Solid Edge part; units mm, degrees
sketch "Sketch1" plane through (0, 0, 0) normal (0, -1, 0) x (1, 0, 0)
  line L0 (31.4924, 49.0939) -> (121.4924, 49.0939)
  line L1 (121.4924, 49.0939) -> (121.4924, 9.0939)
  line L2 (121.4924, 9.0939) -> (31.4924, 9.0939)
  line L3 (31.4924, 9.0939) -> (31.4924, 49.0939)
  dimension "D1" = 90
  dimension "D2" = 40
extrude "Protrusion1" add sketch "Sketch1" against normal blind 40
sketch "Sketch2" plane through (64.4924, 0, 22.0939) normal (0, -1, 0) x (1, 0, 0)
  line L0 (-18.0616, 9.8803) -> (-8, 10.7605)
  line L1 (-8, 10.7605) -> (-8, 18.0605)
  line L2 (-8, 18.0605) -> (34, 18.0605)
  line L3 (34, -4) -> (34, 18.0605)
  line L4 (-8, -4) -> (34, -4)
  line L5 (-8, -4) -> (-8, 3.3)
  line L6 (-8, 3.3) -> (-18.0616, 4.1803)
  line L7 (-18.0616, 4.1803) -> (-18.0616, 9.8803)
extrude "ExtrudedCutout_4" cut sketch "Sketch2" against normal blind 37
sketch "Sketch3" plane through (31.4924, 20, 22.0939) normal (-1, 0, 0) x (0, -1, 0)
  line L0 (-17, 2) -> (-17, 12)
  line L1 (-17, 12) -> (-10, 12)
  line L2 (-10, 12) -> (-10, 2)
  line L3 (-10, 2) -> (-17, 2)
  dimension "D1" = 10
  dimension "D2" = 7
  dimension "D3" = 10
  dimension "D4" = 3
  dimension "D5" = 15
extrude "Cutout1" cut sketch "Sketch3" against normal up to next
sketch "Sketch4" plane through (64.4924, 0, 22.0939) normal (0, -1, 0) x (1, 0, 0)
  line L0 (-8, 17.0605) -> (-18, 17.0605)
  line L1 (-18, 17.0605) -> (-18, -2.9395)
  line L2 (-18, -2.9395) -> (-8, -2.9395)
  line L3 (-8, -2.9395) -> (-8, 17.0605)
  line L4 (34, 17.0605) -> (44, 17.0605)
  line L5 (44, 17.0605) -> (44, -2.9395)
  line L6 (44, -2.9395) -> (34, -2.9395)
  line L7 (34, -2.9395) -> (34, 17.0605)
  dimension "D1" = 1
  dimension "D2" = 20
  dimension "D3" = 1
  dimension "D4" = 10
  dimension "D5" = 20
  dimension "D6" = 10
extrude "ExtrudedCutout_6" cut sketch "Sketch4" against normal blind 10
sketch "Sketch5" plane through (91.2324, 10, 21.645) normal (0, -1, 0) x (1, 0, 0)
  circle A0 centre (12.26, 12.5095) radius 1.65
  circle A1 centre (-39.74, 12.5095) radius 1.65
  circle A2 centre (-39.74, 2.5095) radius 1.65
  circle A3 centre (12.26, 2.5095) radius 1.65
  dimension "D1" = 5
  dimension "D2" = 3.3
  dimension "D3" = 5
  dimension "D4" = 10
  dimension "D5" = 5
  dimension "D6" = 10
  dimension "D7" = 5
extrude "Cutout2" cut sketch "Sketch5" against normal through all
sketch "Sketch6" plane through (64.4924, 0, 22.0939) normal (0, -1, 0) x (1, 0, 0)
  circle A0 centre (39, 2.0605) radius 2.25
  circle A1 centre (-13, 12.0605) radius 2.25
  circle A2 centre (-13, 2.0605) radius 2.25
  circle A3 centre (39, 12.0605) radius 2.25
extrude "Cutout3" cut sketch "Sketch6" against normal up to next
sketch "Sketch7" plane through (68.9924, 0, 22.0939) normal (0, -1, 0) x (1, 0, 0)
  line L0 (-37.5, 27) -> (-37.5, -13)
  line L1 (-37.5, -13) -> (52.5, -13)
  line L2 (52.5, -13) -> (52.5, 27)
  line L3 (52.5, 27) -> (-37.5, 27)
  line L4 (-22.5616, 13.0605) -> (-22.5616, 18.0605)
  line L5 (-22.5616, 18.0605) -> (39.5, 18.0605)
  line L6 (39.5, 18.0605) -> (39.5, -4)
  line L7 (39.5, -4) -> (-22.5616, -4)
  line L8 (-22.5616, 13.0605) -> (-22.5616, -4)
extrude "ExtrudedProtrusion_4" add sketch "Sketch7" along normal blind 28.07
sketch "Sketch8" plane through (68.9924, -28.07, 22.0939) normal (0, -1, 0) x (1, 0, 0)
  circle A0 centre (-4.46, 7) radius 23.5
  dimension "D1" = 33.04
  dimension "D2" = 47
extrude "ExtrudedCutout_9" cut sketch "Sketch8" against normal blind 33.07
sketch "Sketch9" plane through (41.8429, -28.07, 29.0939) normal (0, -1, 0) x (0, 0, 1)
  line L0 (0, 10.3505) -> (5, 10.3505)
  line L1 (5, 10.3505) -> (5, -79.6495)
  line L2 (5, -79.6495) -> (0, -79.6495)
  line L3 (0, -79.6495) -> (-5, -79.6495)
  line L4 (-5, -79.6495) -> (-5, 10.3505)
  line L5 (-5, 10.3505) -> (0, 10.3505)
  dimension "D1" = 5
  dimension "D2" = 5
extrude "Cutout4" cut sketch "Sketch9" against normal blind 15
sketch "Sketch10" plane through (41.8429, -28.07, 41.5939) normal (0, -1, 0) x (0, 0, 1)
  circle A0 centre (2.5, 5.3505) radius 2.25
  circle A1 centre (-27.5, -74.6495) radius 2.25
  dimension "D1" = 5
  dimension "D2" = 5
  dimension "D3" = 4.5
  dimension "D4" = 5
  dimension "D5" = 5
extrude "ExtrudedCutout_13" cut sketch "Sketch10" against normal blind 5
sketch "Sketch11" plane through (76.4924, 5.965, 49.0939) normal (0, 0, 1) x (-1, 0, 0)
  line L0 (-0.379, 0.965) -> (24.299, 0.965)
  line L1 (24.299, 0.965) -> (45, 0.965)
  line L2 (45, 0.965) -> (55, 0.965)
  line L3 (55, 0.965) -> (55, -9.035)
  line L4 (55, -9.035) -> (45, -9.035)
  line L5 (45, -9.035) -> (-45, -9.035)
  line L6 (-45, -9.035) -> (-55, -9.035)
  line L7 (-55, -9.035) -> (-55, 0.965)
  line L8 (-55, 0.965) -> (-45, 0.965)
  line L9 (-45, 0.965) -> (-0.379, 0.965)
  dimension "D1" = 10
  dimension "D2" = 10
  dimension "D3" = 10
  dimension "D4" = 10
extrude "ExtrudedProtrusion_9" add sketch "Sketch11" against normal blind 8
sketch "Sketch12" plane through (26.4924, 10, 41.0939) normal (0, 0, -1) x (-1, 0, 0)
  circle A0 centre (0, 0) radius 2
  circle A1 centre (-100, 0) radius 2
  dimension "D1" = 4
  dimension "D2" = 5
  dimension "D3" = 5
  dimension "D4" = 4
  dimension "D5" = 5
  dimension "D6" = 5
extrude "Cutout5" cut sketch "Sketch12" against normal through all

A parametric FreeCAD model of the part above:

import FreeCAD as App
import Part
import Sketcher
Q = App.Units.Quantity


def add_polygon(sketch, points):
    """Adds a closed chain of lines whose ends are joined by coincident constraints."""
    first, n = sketch.GeometryCount, len(points)
    for a, b in zip(points, points[1:] + points[:1]):
        sketch.addGeometry(Part.LineSegment(App.Vector(*a, 0), App.Vector(*b, 0)), False)
    for i in range(n):
        sketch.addConstraint(Sketcher.Constraint("Coincident", first + i, 2, first + (i + 1) % n, 1))

doc = App.newDocument("Part")
params = doc.addObject("Spreadsheet::Sheet", "Params")
for row, (alias, value) in enumerate([
    ("sketch1_width", "90 mm"),
    ("sketch1_height", "40 mm"),
    ("pad1_length", "40 mm"),
    ("sketch2_width", "42 mm"),
    ("sketch2_height", "5.7 mm"),
    ("sketch2_height2", "7.3 mm"),
    ("sketch2_length", "10.1 mm"),
    ("pocket1_length", "37 mm"),
    ("sketch3_height", "10 mm"),
    ("sketch3_width", "7 mm"),
    ("pocket2_length", "25 mm"),
    ("sketch4_width", "10 mm"),
    ("sketch4_height", "20 mm"),
    ("pocket3_length", "10 mm"),
    ("sketch5_diameter", "3.3 mm"),
    ("sketch6_diameter", "4.5 mm"),
    ("pocket5_length", "40 mm"),
    ("sketch7_width", "90 mm"),
    ("sketch7_height", "40 mm"),
    ("pad2_length", "28.07 mm"),
    ("sketch8_diameter", "47 mm"),
    ("pocket6_length", "33.07 mm"),
    ("sketch9_width", "90 mm"),
    ("sketch9_height", "10 mm"),
    ("pocket7_length", "15 mm"),
    ("sketch10_diameter", "4.5 mm"),
    ("pocket8_length", "5 mm"),
    ("sketch11_width", "110 mm"),
    ("sketch11_height", "10 mm"),
    ("pad3_length", "8 mm"),
    ("sketch12_diameter", "4 mm"),
], start=1):
    params.set(f"A{row}", alias)
    params.set(f"B{row}", "=" + value)
    params.setAlias(f"B{row}", alias)

body = doc.addObject("PartDesign::Body", "Body")

# Sketch on XZ plane
sketch1 = body.newObject("Sketcher::SketchObject", "Sketch")
sketch1.AttachmentSupport = (doc.getObject("XZ_Plane"), [""])
sketch1.MapMode = "FlatFace"
add_polygon(sketch1, [(121, 49), (31, 49), (31, 9), (121, 9)])  # lines 0-3
sketch1.addConstraint([
    Sketcher.Constraint("Horizontal", 0),
    Sketcher.Constraint("Vertical", 1),
    Sketcher.Constraint("Horizontal", 2),
    Sketcher.Constraint("Vertical", 3),
    Sketcher.Constraint("DistanceX", 0, 2, 0, 1, 90.0),
    Sketcher.Constraint("DistanceY", 1, 2, 1, 1, 40.0),
    Sketcher.Constraint("DistanceX", -1, 1, 0, 2, 31.4924),
    Sketcher.Constraint("DistanceY", -1, 1, 0, 2, 49.094),
])
sketch1.setExpression("Constraints[8]", "Params.sketch1_width")
sketch1.setExpression("Constraints[9]", "Params.sketch1_height")
pad1 = body.newObject("PartDesign::Pad", "Pad")
pad1.Profile = sketch1
pad1.setExpression("Length", "Params.pad1_length")
pad1.Reversed = True

# Sketch on XZ plane
sketch2 = body.newObject("Sketcher::SketchObject", "Sketch001")
sketch2.AttachmentSupport = (doc.getObject("XZ_Plane"), [""])
sketch2.MapMode = "FlatFace"
add_polygon(sketch2, [(56, 33), (46, 32), (46, 26), (56, 25), (56, 18), (98, 18), (98, 40), (56, 40)])  # lines 0-7
sketch2.addConstraint([
    Sketcher.Constraint("Vertical", 1),
    Sketcher.Constraint("Vertical", 3),
    Sketcher.Constraint("Horizontal", 4),
    Sketcher.Constraint("Vertical", 5),
    Sketcher.Constraint("Horizontal", 6),
    Sketcher.Constraint("Vertical", 7),
    Sketcher.Constraint("Vertical", 3, 2, 6, 2),
    Sketcher.Constraint("Equal", 3, 7),
    Sketcher.Constraint("Equal", 0, 2),
    Sketcher.Constraint("DistanceX", 4, 1, 4, 2, 42.0),
    Sketcher.Constraint("Angle", 0, Q("-175.0004 deg")),
    Sketcher.Constraint("DistanceY", 1, 2, 1, 1, 5.7),
    Sketcher.Constraint("DistanceY", 3, 2, 3, 1, 7.3),
    Sketcher.Constraint("Distance", 0, 10.1),
    Sketcher.Constraint("DistanceY", -1, 1, 2, 2, 25.394),
    Sketcher.Constraint("DistanceX", -1, 1, 0, 2, 46.4308),
])
sketch2.setExpression("Constraints[17]", "Params.sketch2_width")
sketch2.setExpression("Constraints[19]", "Params.sketch2_height")
sketch2.setExpression("Constraints[20]", "Params.sketch2_height2")
sketch2.setExpression("Constraints[21]", "Params.sketch2_length")
pocket1 = body.newObject("PartDesign::Pocket", "Pocket")
pocket1.Profile = sketch2
pocket1.setExpression("Length", "Params.pocket1_length")

# Sketch on YZ plane
sketch3 = body.newObject("Sketcher::SketchObject", "Sketch002")
sketch3.AttachmentSupport = (doc.getObject("YZ_Plane"), [""])
sketch3.MapMode = "FlatFace"
sketch3.AttachmentOffset = App.Placement(App.Vector(0, 0, 31.4924), App.Rotation())
add_polygon(sketch3, [(37, 34), (37, 24), (30, 24), (30, 34)])  # lines 0-3
sketch3.addConstraint([
    Sketcher.Constraint("Vertical", 0),
    Sketcher.Constraint("Horizontal", 1),
    Sketcher.Constraint("Vertical", 2),
    Sketcher.Constraint("Horizontal", 3),
    Sketcher.Constraint("DistanceY", 0, 2, 0, 1, 10.0),
    Sketcher.Constraint("DistanceX", 1, 2, 1, 1, 7.0),
    Sketcher.Constraint("DistanceX", -1, 1, 0, 2, 37.0),
    Sketcher.Constraint("DistanceY", -1, 1, 0, 2, 24.094),
])
sketch3.setExpression("Constraints[8]", "Params.sketch3_height")
sketch3.setExpression("Constraints[9]", "Params.sketch3_width")
pocket2 = body.newObject("PartDesign::Pocket", "Pocket001")
pocket2.Profile = sketch3
pocket2.setExpression("Length", "Params.pocket2_length")
pocket2.Reversed = True

# Sketch on XZ plane
sketch4 = body.newObject("Sketcher::SketchObject", "Sketch003")
sketch4.AttachmentSupport = (doc.getObject("XZ_Plane"), [""])
sketch4.MapMode = "FlatFace"
add_polygon(sketch4, [(56, 19), (56, 39), (46, 39), (46, 19)])  # lines 0-3
add_polygon(sketch4, [(108, 39), (98, 39), (98, 19), (108, 19)])  # lines 4-7
sketch4.addConstraint([
    Sketcher.Constraint("Vertical", 0),
    Sketcher.Constraint("Horizontal", 1),
    Sketcher.Constraint("Vertical", 2),
    Sketcher.Constraint("Horizontal", 3),
    Sketcher.Constraint("Horizontal", 4),
    Sketcher.Constraint("Vertical", 5),
    Sketcher.Constraint("Horizontal", 6),
    Sketcher.Constraint("Vertical", 7),
    Sketcher.Constraint("Horizontal", 1, 2, 4, 2),
    Sketcher.Constraint("Horizontal", 3, 2, 5, 2),
    Sketcher.Constraint("Equal", 3, 4),
    Sketcher.Constraint("DistanceX", 1, 2, 1, 1, 10.0),
    Sketcher.Constraint("DistanceY", 0, 1, 0, 2, 20.0),
    Sketcher.Constraint("DistanceX", 0, 2, 4, 2, 42.0),
    Sketcher.Constraint("DistanceX", -1, 1, 0, 2, 56.4924),
    Sketcher.Constraint("DistanceY", -1, 1, 0, 2, 39.1544),
])
sketch4.setExpression("Constraints[19]", "Params.sketch4_width")
sketch4.setExpression("Constraints[20]", "Params.sketch4_height")
pocket3 = body.newObject("PartDesign::Pocket", "Pocket002")
pocket3.Profile = sketch4
pocket3.setExpression("Length", "Params.pocket3_length")

# Sketch on XZ plane
sketch5 = body.newObject("Sketcher::SketchObject", "Sketch004")
sketch5.AttachmentSupport = (doc.getObject("XZ_Plane"), [""])
sketch5.MapMode = "FlatFace"
sketch5.AttachmentOffset = App.Placement(App.Vector(0, 0, -10), App.Rotation())
sketch5.addGeometry([
    Part.Circle(App.Vector(103.5, 34.2, 0), App.Vector(0, 0, 1), 1.6),
    Part.Circle(App.Vector(51.5, 34.2, 0), App.Vector(0, 0, 1), 1.6),
    Part.Circle(App.Vector(51.5, 24.2, 0), App.Vector(0, 0, 1), 1.6),
    Part.Circle(App.Vector(103.5, 24.2, 0), App.Vector(0, 0, 1), 1.6),
], False)
sketch5.addConstraint([
    Sketcher.Constraint("Equal", 0, 1),
    Sketcher.Constraint("Equal", 1, 2),
    Sketcher.Constraint("Equal", 2, 3),
    Sketcher.Constraint("Horizontal", 0, 3, 1, 3),
    Sketcher.Constraint("Horizontal", 2, 3, 3, 3),
    Sketcher.Constraint("Vertical", 1, 3, 2, 3),
    Sketcher.Constraint("Vertical", 0, 3, 3, 3),
    Sketcher.Constraint("Diameter", 0, 3.3),
    Sketcher.Constraint("DistanceX", 1, 3, 0, 3, 52.0),
    Sketcher.Constraint("DistanceY", 2, 3, 1, 3, 10.0),
    Sketcher.Constraint("DistanceX", -1, 1, 0, 3, 103.4924),
    Sketcher.Constraint("DistanceY", -1, 1, 0, 3, 34.1545),
])
sketch5.setExpression("Constraints[7]", "Params.sketch5_diameter")
pocket4 = body.newObject("PartDesign::Pocket", "Pocket003")
pocket4.Profile = sketch5
pocket4.Type = "ThroughAll"

# Sketch on XZ plane
sketch6 = body.newObject("Sketcher::SketchObject", "Sketch005")
sketch6.AttachmentSupport = (doc.getObject("XZ_Plane"), [""])
sketch6.MapMode = "FlatFace"
sketch6.addGeometry([
    Part.Circle(App.Vector(103.5, 24.2, 0), App.Vector(0, 0, 1), 2.2),
    Part.Circle(App.Vector(51.5, 34.2, 0), App.Vector(0, 0, 1), 2.2),
    Part.Circle(App.Vector(51.5, 24.2, 0), App.Vector(0, 0, 1), 2.2),
    Part.Circle(App.Vector(103.5, 34.2, 0), App.Vector(0, 0, 1), 2.2),
], False)
sketch6.addConstraint([
    Sketcher.Constraint("Equal", 0, 1),
    Sketcher.Constraint("Equal", 1, 2),
    Sketcher.Constraint("Equal", 2, 3),
    Sketcher.Constraint("Horizontal", 0, 3, 2, 3),
    Sketcher.Constraint("Horizontal", 1, 3, 3, 3),
    Sketcher.Constraint("Vertical", 1, 3, 2, 3),
    Sketcher.Constraint("Vertical", 0, 3, 3, 3),
    Sketcher.Constraint("Diameter", 0, 4.5),
    Sketcher.Constraint("DistanceX", 1, 3, 0, 3, 52.0),
    Sketcher.Constraint("DistanceY", 0, 3, 1, 3, 10.0),
    Sketcher.Constraint("DistanceX", -1, 1, 0, 3, 103.4924),
    Sketcher.Constraint("DistanceY", -1, 1, 0, 3, 24.1544),
])
sketch6.setExpression("Constraints[7]", "Params.sketch6_diameter")
pocket5 = body.newObject("PartDesign::Pocket", "Pocket004")
pocket5.Profile = sketch6
pocket5.setExpression("Length", "Params.pocket5_length")

# Sketch on XZ plane
sketch7 = body.newObject("Sketcher::SketchObject", "Sketch006")
sketch7.AttachmentSupport = (doc.getObject("XZ_Plane"), [""])
sketch7.MapMode = "FlatFace"
add_polygon(sketch7, [(121, 49), (31, 49), (31, 9), (121, 9)])  # lines 0-3
add_polygon(sketch7, [(46, 18), (46, 40), (108, 40), (108, 18)])  # lines 4-7
sketch7.addConstraint([
    Sketcher.Constraint("Horizontal", 0),
    Sketcher.Constraint("Vertical", 1),
    Sketcher.Constraint("Horizontal", 2),
    Sketcher.Constraint("Vertical", 3),
    Sketcher.Constraint("Vertical", 4),
    Sketcher.Constraint("Horizontal", 5),
    Sketcher.Constraint("Vertical", 6),
    Sketcher.Constraint("Horizontal", 7),
    Sketcher.Constraint("DistanceX", 0, 2, 0, 1, 90.0),
    Sketcher.Constraint("DistanceY", 1, 2, 1, 1, 40.0),
    Sketcher.Constraint("DistanceX", 5, 2, 3, 2, 13.0),
    Sketcher.Constraint("DistanceY", 2, 2, 6, 2, 9.0),
    Sketcher.Constraint("DistanceX", 5, 1, 5, 2, 62.0616),
    Sketcher.Constraint("DistanceY", 4, 1, 4, 2, 22.0605),
    Sketcher.Constraint("DistanceY", -1, 1, 0, 2, 49.094),
    Sketcher.Constraint("DistanceX", -1, 1, 0, 2, 31.4924),
])
sketch7.setExpression("Constraints[16]", "Params.sketch7_width")
sketch7.setExpression("Constraints[17]", "Params.sketch7_height")
pad2 = body.newObject("PartDesign::Pad", "Pad001")
pad2.Profile = sketch7
pad2.setExpression("Length", "Params.pad2_length")

# Sketch on XZ plane
sketch8 = body.newObject("Sketcher::SketchObject", "Sketch007")
sketch8.AttachmentSupport = (doc.getObject("XZ_Plane"), [""])
sketch8.MapMode = "FlatFace"
sketch8.AttachmentOffset = App.Placement(App.Vector(0, 0, 28.07), App.Rotation())
sketch8.addGeometry(Part.Circle(App.Vector(65, 29, 0), App.Vector(0, 0, 1), 24), False)
sketch8.addConstraint([
    Sketcher.Constraint("Diameter", 0, 47.0),
    Sketcher.Constraint("DistanceY", -1, 1, 0, 3, 29.094),
    Sketcher.Constraint("DistanceX", -1, 1, 0, 3, 64.5324),
])
sketch8.setExpression("Constraints[0]", "Params.sketch8_diameter")
pocket6 = body.newObject("PartDesign::Pocket", "Pocket005")
pocket6.Profile = sketch8
pocket6.setExpression("Length", "Params.pocket6_length")

# Sketch on XZ plane
sketch9 = body.newObject("Sketcher::SketchObject", "Sketch008")
sketch9.AttachmentSupport = (doc.getObject("XZ_Plane"), [""])
sketch9.MapMode = "FlatFace"
sketch9.AttachmentOffset = App.Placement(App.Vector(0, 0, 28.07), App.Rotation())
add_polygon(sketch9, [(31, 34), (31, 24), (121, 24), (121, 34)])  # lines 0-3
sketch9.addConstraint([
    Sketcher.Constraint("Vertical", 0),
    Sketcher.Constraint("Horizontal", 1),
    Sketcher.Constraint("Vertical", 2),
    Sketcher.Constraint("Horizontal", 3),
    Sketcher.Constraint("DistanceX", 1, 1, 1, 2, 90.0),
    Sketcher.Constraint("DistanceY", 0, 2, 0, 1, 10.0),
    Sketcher.Constraint("DistanceY", -1, 1, 0, 2, 24.094),
    Sketcher.Constraint("DistanceX", -1, 1, 0, 2, 31.4924),
])
sketch9.setExpression("Constraints[8]", "Params.sketch9_width")
sketch9.setExpression("Constraints[9]", "Params.sketch9_height")
pocket7 = body.newObject("PartDesign::Pocket", "Pocket006")
pocket7.Profile = sketch9
pocket7.setExpression("Length", "Params.pocket7_length")

# Sketch on XZ plane
sketch10 = body.newObject("Sketcher::SketchObject", "Sketch009")
sketch10.AttachmentSupport = (doc.getObject("XZ_Plane"), [""])
sketch10.MapMode = "FlatFace"
sketch10.AttachmentOffset = App.Placement(App.Vector(0, 0, 28.07), App.Rotation())
sketch10.addGeometry([
    Part.Circle(App.Vector(36.5, 44.1, 0), App.Vector(0, 0, 1), 2.2),
    Part.Circle(App.Vector(116.5, 14.1, 0), App.Vector(0, 0, 1), 2.2),
], False)
sketch10.addConstraint([
    Sketcher.Constraint("Equal", 0, 1),
    Sketcher.Constraint("Diameter", 0, 4.5),
    Sketcher.Constraint("DistanceX", 0, 3, 1, 3, 80.0),
    Sketcher.Constraint("DistanceY", 1, 3, 0, 3, 30.0),
    Sketcher.Constraint("DistanceY", -1, 1, 0, 3, 44.094),
    Sketcher.Constraint("DistanceX", -1, 1, 0, 3, 36.4924),
])
sketch10.setExpression("Constraints[1]", "Params.sketch10_diameter")
pocket8 = body.newObject("PartDesign::Pocket", "Pocket007")
pocket8.Profile = sketch10
pocket8.setExpression("Length", "Params.pocket8_length")

# Sketch on XY plane
sketch11 = body.newObject("Sketcher::SketchObject", "Sketch010")
sketch11.AttachmentSupport = (doc.getObject("XY_Plane"), [""])
sketch11.MapMode = "FlatFace"
sketch11.AttachmentOffset = App.Placement(App.Vector(0, 0, 49.0939), App.Rotation())
add_polygon(sketch11, [(21, 5), (131, 5), (131, 15), (21, 15)])  # lines 0-3
sketch11.addConstraint([
    Sketcher.Constraint("Horizontal", 0),
    Sketcher.Constraint("Vertical", 1),
    Sketcher.Constraint("Horizontal", 2),
    Sketcher.Constraint("Vertical", 3),
    Sketcher.Constraint("DistanceX", 0, 1, 0, 2, 110.0),
    Sketcher.Constraint("DistanceY", 1, 1, 1, 2, 10.0),
    Sketcher.Constraint("DistanceY", -1, 1, 0, 2, 5.0),
    Sketcher.Constraint("DistanceX", -1, 1, 0, 2, 131.4924),
])
sketch11.setExpression("Constraints[8]", "Params.sketch11_width")
sketch11.setExpression("Constraints[9]", "Params.sketch11_height")
pad3 = body.newObject("PartDesign::Pad", "Pad002")
pad3.Profile = sketch11
pad3.setExpression("Length", "Params.pad3_length")
pad3.Reversed = True

# Sketch on XY plane
sketch12 = body.newObject("Sketcher::SketchObject", "Sketch011")
sketch12.AttachmentSupport = (doc.getObject("XY_Plane"), [""])
sketch12.MapMode = "FlatFace"
sketch12.AttachmentOffset = App.Placement(App.Vector(0, 0, 41.0939), App.Rotation())
sketch12.addGeometry([
    Part.Circle(App.Vector(26.5, 10, 0), App.Vector(0, 0, 1), 2),
    Part.Circle(App.Vector(126.5, 10, 0), App.Vector(0, 0, 1), 2),
], False)
sketch12.addConstraint([
    Sketcher.Constraint("Equal", 0, 1),
    Sketcher.Constraint("Horizontal", 0, 3, 1, 3),
    Sketcher.Constraint("Diameter", 0, 4.0),
    Sketcher.Constraint("DistanceY", -1, 1, 0, 3, 10.0),
    Sketcher.Constraint("DistanceX", 0, 3, 1, 3, 100.0),
    Sketcher.Constraint("DistanceX", -1, 1, 0, 3, 26.4924),
])
sketch12.setExpression("Constraints[2]", "Params.sketch12_diameter")
pocket9 = body.newObject("PartDesign::Pocket", "Pocket008")
pocket9.Profile = sketch12
pocket9.Type = "ThroughAll"
pocket9.Reversed = True

doc.recompute()
